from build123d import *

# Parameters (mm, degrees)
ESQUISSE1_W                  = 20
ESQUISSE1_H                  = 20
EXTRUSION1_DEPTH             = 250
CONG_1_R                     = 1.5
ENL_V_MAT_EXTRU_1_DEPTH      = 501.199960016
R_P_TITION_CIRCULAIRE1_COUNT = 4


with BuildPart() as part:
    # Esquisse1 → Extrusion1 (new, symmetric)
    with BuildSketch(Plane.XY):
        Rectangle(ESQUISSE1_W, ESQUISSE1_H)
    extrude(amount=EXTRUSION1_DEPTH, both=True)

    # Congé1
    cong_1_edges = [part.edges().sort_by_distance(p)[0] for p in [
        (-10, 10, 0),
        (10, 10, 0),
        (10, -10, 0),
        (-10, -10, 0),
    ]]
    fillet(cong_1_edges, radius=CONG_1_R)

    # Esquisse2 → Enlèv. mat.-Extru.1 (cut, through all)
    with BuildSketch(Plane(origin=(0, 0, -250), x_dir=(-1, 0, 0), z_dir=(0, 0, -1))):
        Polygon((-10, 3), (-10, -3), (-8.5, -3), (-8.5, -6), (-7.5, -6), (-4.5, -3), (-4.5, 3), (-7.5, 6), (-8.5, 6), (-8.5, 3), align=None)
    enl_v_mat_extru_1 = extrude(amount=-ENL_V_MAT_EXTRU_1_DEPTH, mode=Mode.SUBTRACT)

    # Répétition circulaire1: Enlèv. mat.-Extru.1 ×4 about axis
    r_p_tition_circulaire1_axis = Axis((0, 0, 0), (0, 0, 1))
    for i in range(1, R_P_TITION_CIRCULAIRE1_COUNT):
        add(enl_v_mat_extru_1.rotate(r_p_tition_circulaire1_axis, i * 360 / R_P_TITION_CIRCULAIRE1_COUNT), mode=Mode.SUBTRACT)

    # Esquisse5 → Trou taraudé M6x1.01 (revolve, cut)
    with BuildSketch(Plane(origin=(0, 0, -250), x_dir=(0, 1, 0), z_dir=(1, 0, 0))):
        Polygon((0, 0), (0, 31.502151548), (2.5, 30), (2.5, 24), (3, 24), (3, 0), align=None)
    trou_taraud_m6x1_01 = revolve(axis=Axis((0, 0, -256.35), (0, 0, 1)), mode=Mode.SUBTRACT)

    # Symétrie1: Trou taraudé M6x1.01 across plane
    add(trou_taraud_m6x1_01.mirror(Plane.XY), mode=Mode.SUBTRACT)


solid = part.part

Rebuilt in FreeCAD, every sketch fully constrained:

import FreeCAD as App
import Part
import Sketcher

V = App.Vector
Q = App.Units.Quantity


def edges_at(feature, points):
    """Names of the edges that pass closest to the given points."""
    edges = feature.Shape.Edges
    near = lambda p: min(range(len(edges)), key=lambda i: edges[i].distToShape(Part.Vertex(*p))[0])
    return sorted({f"Edge{near(p) + 1}" for p in points})

doc = App.newDocument("Part")
body = doc.addObject("PartDesign::Body", "Body")

sketch1 = doc.addObject("Sketcher::SketchObject", "Sketch")
body.addObject(sketch1)
sketch1.AttachmentSupport = (doc.XY_Plane, [""])
sketch1.MapMode = "FlatFace"
sketch1.addGeometry(Part.LineSegment(V(-10, 10, 0), V(-10, -10, 0)), False)
sketch1.addGeometry(Part.LineSegment(V(-10, -10, 0), V(10, -10, 0)), False)
sketch1.addGeometry(Part.LineSegment(V(10, -10, 0), V(10, 10, 0)), False)
sketch1.addGeometry(Part.LineSegment(V(10, 10, 0), V(-10, 10, 0)), False)
sketch1.addConstraint(Sketcher.Constraint("Coincident", 0, 2, 1, 1))
sketch1.addConstraint(Sketcher.Constraint("Coincident", 1, 2, 2, 1))
sketch1.addConstraint(Sketcher.Constraint("Coincident", 2, 2, 3, 1))
sketch1.addConstraint(Sketcher.Constraint("Coincident", 3, 2, 0, 1))
sketch1.addConstraint(Sketcher.Constraint("Vertical", 0))
sketch1.addConstraint(Sketcher.Constraint("Horizontal", 1))
sketch1.addConstraint(Sketcher.Constraint("Vertical", 2))
sketch1.addConstraint(Sketcher.Constraint("Horizontal", 3))
sketch1.addConstraint(Sketcher.Constraint("Symmetric", 0, 2, 2, 2, -1, 1))
sketch1.addConstraint(Sketcher.Constraint("Equal", 3, 0))
sketch1.addConstraint(Sketcher.Constraint("DistanceX", 1, 1, 1, 2, Q("20 mm")))
pad1 = doc.addObject("PartDesign::Pad", "Pad")
body.addObject(pad1)
pad1.Profile = sketch1
pad1.Length = 500
pad1.Midplane = True
doc.recompute()

fillet = doc.addObject("PartDesign::Fillet", "Fillet")
body.addObject(fillet)
fillet.Base = (pad1, edges_at(pad1, [
    (-10, 10, 0),
    (10, 10, 0),
    (10, -10, 0),
    (-10, -10, 0),
]))
fillet.Radius = 1.5

sketch2 = doc.addObject("Sketcher::SketchObject", "Sketch001")
body.addObject(sketch2)
sketch2.AttachmentSupport = (doc.XY_Plane, [""])
sketch2.MapMode = "FlatFace"
sketch2.AttachmentOffset = App.Placement(V(0, 0, -250), App.Rotation())
sketch2.addGeometry(Part.LineSegment(V(10, 3, 0), V(10, -3, 0)), False)
sketch2.addGeometry(Part.LineSegment(V(10, -3, 0), V(8.5, -3, 0)), False)
sketch2.addGeometry(Part.LineSegment(V(8.5, -3, 0), V(8.5, -6, 0)), False)
sketch2.addGeometry(Part.LineSegment(V(8.5, -6, 0), V(7.5, -6, 0)), False)
sketch2.addGeometry(Part.LineSegment(V(7.5, -6, 0), V(4.5, -3, 0)), False)
sketch2.addGeometry(Part.LineSegment(V(4.5, -3, 0), V(4.5, 3, 0)), False)
sketch2.addGeometry(Part.LineSegment(V(4.5, 3, 0), V(7.5, 6, 0)), False)
sketch2.addGeometry(Part.LineSegment(V(7.5, 6, 0), V(8.5, 6, 0)), False)
sketch2.addGeometry(Part.LineSegment(V(8.5, 6, 0), V(8.5, 3, 0)), False)
sketch2.addGeometry(Part.LineSegment(V(8.5, 3, 0), V(10, 3, 0)), False)
sketch2.addConstraint(Sketcher.Constraint("Coincident", 0, 2, 1, 1))
sketch2.addConstraint(Sketcher.Constraint("Coincident", 1, 2, 2, 1))
sketch2.addConstraint(Sketcher.Constraint("Coincident", 2, 2, 3, 1))
sketch2.addConstraint(Sketcher.Constraint("Coincident", 3, 2, 4, 1))
sketch2.addConstraint(Sketcher.Constraint("Coincident", 4, 2, 5, 1))
sketch2.addConstraint(Sketcher.Constraint("Coincident", 5, 2, 6, 1))
sketch2.addConstraint(Sketcher.Constraint("Coincident", 6, 2, 7, 1))
sketch2.addConstraint(Sketcher.Constraint("Coincident", 7, 2, 8, 1))
sketch2.addConstraint(Sketcher.Constraint("Coincident", 8, 2, 9, 1))
sketch2.addConstraint(Sketcher.Constraint("Coincident", 9, 2, 0, 1))
sketch2.addConstraint(Sketcher.Constraint("Vertical", 0))
sketch2.addConstraint(Sketcher.Constraint("Horizontal", 1))
sketch2.addConstraint(Sketcher.Constraint("Vertical", 2))
sketch2.addConstraint(Sketcher.Constraint("Horizontal", 3))
sketch2.addConstraint(Sketcher.Constraint("Vertical", 5))
sketch2.addConstraint(Sketcher.Constraint("Horizontal", 7))
sketch2.addConstraint(Sketcher.Constraint("Vertical", 8))
sketch2.addConstraint(Sketcher.Constraint("Horizontal", 9))
sketch2.addConstraint(Sketcher.Constraint("Symmetric", 3, 2, 6, 2, -1))
sketch2.addConstraint(Sketcher.Constraint("Symmetric", 1, 2, 8, 2, -1))
sketch2.addConstraint(Sketcher.Constraint("Perpendicular", 4, 6))
sketch2.addConstraint(Sketcher.Constraint("Horizontal", 1, 2, 4, 2))
sketch2.addConstraint(Sketcher.Constraint("Horizontal", 5, 2, 8, 2))
sketch2.addConstraint(Sketcher.Constraint("DistanceX", 3, 2, 3, 1, Q("1 mm")))
sketch2.addConstraint(Sketcher.Constraint("DistanceY", 0, 2, 0, 1, Q("6 mm")))
sketch2.addConstraint(Sketcher.Constraint("DistanceY", 2, 2, 2, 1, Q("3 mm")))
sketch2.addConstraint(Sketcher.Constraint("DistanceX", 1, 2, 1, 1, Q("1.5 mm")))
sketch2.addConstraint(Sketcher.Constraint("DistanceX", -1, 1, 0, 2, Q("10 mm")))
pocket1 = doc.addObject("PartDesign::Pocket", "Pocket")
body.addObject(pocket1)
pocket1.Profile = sketch2
pocket1.Type = "ThroughAll"
pocket1.Reversed = True
doc.recompute()

polarpattern = doc.addObject("PartDesign::PolarPattern", "PolarPattern")
body.addObject(polarpattern)
polarpattern.Originals = [pocket1]
polarpattern.Axis = (doc.Z_Axis, [""])
polarpattern.Angle = 360
polarpattern.Occurrences = 4
body.Tip = polarpattern

sketch3 = doc.addObject("Sketcher::SketchObject", "Sketch002")
body.addObject(sketch3)
sketch3.AttachmentSupport = (doc.YZ_Plane, [""])
sketch3.MapMode = "FlatFace"
sketch3.addGeometry(Part.LineSegment(V(0, -218.5, 0), V(0, -250, 0)), False)
sketch3.addGeometry(Part.LineSegment(V(0, -250, 0), V(3, -250, 0)), False)
sketch3.addGeometry(Part.LineSegment(V(3, -250, 0), V(3, -226, 0)), False)
sketch3.addGeometry(Part.LineSegment(V(3, -226, 0), V(2.5, -226, 0)), False)
sketch3.addGeometry(Part.LineSegment(V(2.5, -226, 0), V(2.5, -220, 0)), False)
sketch3.addGeometry(Part.LineSegment(V(2.5, -220, 0), V(0, -218.5, 0)), False)
sketch3.addConstraint(Sketcher.Constraint("Coincident", 0, 2, 1, 1))
sketch3.addConstraint(Sketcher.Constraint("Coincident", 1, 2, 2, 1))
sketch3.addConstraint(Sketcher.Constraint("Coincident", 2, 2, 3, 1))
sketch3.addConstraint(Sketcher.Constraint("Coincident", 3, 2, 4, 1))
sketch3.addConstraint(Sketcher.Constraint("Coincident", 4, 2, 5, 1))
sketch3.addConstraint(Sketcher.Constraint("Coincident", 5, 2, 0, 1))
sketch3.addConstraint(Sketcher.Constraint("Vertical", 0))
sketch3.addConstraint(Sketcher.Constraint("Horizontal", 1))
sketch3.addConstraint(Sketcher.Constraint("Vertical", 2))
sketch3.addConstraint(Sketcher.Constraint("Horizontal", 3))
sketch3.addConstraint(Sketcher.Constraint("Vertical", 4))
sketch3.addConstraint(Sketcher.Constraint("PointOnObject", 0, 2, -2))
sketch3.addConstraint(Sketcher.Constraint("DistanceX", 1, 1, 1, 2, Q("3 mm")))
sketch3.addConstraint(Sketcher.Constraint("DistanceY", 2, 1, 2, 2, Q("24 mm")))
sketch3.addConstraint(Sketcher.Constraint("DistanceY", 4, 1, 4, 2, Q("6 mm")))
sketch3.addConstraint(Sketcher.Constraint("Angle", 5, Q("149 deg")))
sketch3.addConstraint(Sketcher.Constraint("DistanceX", 3, 2, 3, 1, Q("0.5 mm")))
sketch3.addConstraint(Sketcher.Constraint("DistanceY", 0, 2, -1, 1, Q("250 mm")))
groove = doc.addObject("PartDesign::Groove", "Groove")
body.addObject(groove)
groove.Profile = sketch3
groove.ReferenceAxis = (sketch3, ["V_Axis"])
groove.Angle = 360
doc.recompute()

mirrored = doc.addObject("PartDesign::Mirrored", "Mirrored")
body.addObject(mirrored)
mirrored.Originals = [groove]
mirrored.MirrorPlane = (doc.XY_Plane, [""])
body.Tip = mirrored

doc.recompute()
